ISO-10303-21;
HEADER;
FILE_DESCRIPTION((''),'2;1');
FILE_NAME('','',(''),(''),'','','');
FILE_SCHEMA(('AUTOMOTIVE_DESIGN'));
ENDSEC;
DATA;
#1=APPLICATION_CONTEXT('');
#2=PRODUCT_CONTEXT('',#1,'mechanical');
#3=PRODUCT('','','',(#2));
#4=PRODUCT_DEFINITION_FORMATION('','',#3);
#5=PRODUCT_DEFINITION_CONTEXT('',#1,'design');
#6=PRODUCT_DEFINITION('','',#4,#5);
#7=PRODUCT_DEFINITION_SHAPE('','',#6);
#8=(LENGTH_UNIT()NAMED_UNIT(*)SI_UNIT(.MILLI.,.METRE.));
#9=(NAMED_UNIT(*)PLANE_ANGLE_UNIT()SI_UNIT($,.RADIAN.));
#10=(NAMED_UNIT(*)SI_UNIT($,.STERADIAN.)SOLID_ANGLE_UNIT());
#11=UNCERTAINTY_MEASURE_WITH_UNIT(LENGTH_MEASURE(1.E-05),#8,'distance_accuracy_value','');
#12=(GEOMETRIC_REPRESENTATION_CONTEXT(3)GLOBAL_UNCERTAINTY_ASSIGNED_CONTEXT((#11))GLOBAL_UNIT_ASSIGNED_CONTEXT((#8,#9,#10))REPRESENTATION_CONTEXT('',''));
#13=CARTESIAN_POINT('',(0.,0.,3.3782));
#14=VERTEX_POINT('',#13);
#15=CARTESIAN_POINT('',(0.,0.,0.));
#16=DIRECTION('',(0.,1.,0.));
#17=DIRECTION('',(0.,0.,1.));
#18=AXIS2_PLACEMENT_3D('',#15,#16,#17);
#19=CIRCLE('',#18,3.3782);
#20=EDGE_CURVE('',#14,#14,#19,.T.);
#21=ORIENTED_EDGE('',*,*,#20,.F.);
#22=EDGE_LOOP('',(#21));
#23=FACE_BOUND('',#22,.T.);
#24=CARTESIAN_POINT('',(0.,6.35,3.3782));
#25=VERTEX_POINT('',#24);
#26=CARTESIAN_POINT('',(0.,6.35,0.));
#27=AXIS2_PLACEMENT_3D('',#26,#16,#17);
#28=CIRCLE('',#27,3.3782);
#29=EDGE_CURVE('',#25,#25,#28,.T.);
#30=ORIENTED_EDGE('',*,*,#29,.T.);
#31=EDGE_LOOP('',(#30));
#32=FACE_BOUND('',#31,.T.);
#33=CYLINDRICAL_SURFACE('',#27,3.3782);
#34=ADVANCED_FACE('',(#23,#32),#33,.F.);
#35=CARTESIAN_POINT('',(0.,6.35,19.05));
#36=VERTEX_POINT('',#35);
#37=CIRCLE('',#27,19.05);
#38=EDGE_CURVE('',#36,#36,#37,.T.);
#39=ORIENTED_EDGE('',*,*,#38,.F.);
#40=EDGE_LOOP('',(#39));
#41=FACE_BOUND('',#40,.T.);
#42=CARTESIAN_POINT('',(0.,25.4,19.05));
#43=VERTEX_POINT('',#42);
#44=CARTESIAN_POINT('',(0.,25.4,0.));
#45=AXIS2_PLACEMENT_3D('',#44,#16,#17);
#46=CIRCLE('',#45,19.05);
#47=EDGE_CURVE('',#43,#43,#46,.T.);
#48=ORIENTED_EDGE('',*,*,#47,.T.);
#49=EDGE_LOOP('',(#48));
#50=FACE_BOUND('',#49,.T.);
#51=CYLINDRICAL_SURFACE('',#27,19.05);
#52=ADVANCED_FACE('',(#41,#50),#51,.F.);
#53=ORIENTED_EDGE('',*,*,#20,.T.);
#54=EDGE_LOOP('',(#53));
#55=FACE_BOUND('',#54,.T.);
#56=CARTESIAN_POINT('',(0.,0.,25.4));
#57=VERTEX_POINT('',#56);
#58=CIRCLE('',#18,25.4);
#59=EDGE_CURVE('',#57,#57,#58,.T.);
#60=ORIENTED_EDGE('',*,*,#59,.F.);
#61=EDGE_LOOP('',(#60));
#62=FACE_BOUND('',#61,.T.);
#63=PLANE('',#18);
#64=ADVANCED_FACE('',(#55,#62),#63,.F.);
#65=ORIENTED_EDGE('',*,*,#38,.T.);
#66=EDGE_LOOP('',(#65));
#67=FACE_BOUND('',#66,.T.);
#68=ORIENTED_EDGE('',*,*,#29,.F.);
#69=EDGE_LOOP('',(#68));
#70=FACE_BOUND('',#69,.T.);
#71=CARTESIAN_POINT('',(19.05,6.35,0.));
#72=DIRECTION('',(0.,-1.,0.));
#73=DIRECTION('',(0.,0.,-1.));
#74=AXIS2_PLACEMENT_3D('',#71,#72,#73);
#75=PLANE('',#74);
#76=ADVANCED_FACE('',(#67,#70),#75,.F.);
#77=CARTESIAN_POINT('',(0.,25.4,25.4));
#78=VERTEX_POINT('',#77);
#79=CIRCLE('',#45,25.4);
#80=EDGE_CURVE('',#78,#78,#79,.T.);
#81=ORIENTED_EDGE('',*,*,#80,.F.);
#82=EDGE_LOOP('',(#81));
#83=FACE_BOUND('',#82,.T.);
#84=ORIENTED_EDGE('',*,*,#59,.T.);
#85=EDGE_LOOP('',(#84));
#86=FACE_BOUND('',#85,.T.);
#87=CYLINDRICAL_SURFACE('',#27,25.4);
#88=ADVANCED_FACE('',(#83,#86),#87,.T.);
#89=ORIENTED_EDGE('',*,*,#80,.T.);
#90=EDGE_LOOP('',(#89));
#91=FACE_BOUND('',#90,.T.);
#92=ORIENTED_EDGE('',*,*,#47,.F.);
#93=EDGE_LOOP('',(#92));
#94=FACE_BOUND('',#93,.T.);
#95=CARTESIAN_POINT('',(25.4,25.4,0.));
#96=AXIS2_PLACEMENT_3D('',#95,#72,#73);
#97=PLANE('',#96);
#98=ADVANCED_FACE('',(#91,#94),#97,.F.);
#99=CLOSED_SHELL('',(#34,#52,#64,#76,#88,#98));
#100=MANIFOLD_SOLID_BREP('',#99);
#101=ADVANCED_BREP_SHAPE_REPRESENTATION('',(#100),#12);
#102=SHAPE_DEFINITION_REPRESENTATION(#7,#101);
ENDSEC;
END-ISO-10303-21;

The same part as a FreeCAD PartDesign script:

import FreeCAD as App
import Part
import Sketcher
Q = App.Units.Quantity

doc = App.newDocument("Part")
body = doc.addObject("PartDesign::Body", "Body")

# Sketch on XY plane
sketch1 = body.newObject("Sketcher::SketchObject", "Sketch")
sketch1.AttachmentSupport = (doc.getObject("XY_Plane"), [""])
sketch1.MapMode = "FlatFace"
sketch1.addGeometry([
    Part.LineSegment(App.Vector(0, 0, 0), App.Vector(25, 0, 0)),  # 0
    Part.LineSegment(App.Vector(25, 0, 0), App.Vector(25, 25, 0)),  # 1
    Part.LineSegment(App.Vector(25, 25, 0), App.Vector(19, 25, 0)),  # 2
    Part.LineSegment(App.Vector(19, 25, 0), App.Vector(19, 6, 0)),  # 3
    Part.LineSegment(App.Vector(19, 6, 0), App.Vector(0, 6, 0)),  # 4
    Part.LineSegment(App.Vector(0, 6, 0), App.Vector(0, 0, 0)),  # 5
], False)
sketch1.addConstraint([
    Sketcher.Constraint("Coincident", 0, 2, 1, 1),
    Sketcher.Constraint("Coincident", 1, 2, 2, 1),
    Sketcher.Constraint("Coincident", 2, 2, 3, 1),
    Sketcher.Constraint("Coincident", 3, 2, 4, 1),
    Sketcher.Constraint("Coincident", 4, 2, 5, 1),
    Sketcher.Constraint("Coincident", 5, 2, 0, 1),
    Sketcher.Constraint("Horizontal", 0),
    Sketcher.Constraint("Vertical", 1),
    Sketcher.Constraint("Horizontal", 2),
    Sketcher.Constraint("Vertical", 3),
    Sketcher.Constraint("Horizontal", 4),
    Sketcher.Constraint("Vertical", 5),
    Sketcher.Constraint("Coincident", 5, 2, -1, 1),
    Sketcher.Constraint("Equal", 0, 1),
    Sketcher.Constraint("Equal", 4, 3),
    Sketcher.Constraint("DistanceX", 0, 1, 0, 2, Q("1 in")),
    Sketcher.Constraint("DistanceX", 2, 2, 2, 1, Q("0.25 in")),
])
revolution = body.newObject("PartDesign::Revolution", "Revolution")
revolution.Profile = sketch1
revolution.ReferenceAxis = (sketch1, ["V_Axis"])
revolution.Angle = 360

# Sketch on XZ plane
sketch2 = body.newObject("Sketcher::SketchObject", "Sketch001")
sketch2.AttachmentSupport = (doc.getObject("XZ_Plane"), [""])
sketch2.MapMode = "FlatFace"
sketch2.AttachmentOffset = App.Placement(App.Vector(0, 0, -0.25 * 25.4), App.Rotation())
sketch2.addGeometry(Part.Circle(App.Vector(0, 0, 0), App.Vector(0, 0, 1), 3.4), False)
sketch2.addConstraint([
    Sketcher.Constraint("Coincident", 0, 3, -1, 1),
    Sketcher.Constraint("Diameter", 0, Q("0.266 in")),
])
doc.recompute()
hole = body.newObject("PartDesign::Hole", "Hole")
hole.Profile = sketch2
hole.ThreadType = "None"
hole.Diameter = Q("0.266 in")
hole.DepthType = "ThroughAll"
hole.Reversed = True

doc.recompute()
